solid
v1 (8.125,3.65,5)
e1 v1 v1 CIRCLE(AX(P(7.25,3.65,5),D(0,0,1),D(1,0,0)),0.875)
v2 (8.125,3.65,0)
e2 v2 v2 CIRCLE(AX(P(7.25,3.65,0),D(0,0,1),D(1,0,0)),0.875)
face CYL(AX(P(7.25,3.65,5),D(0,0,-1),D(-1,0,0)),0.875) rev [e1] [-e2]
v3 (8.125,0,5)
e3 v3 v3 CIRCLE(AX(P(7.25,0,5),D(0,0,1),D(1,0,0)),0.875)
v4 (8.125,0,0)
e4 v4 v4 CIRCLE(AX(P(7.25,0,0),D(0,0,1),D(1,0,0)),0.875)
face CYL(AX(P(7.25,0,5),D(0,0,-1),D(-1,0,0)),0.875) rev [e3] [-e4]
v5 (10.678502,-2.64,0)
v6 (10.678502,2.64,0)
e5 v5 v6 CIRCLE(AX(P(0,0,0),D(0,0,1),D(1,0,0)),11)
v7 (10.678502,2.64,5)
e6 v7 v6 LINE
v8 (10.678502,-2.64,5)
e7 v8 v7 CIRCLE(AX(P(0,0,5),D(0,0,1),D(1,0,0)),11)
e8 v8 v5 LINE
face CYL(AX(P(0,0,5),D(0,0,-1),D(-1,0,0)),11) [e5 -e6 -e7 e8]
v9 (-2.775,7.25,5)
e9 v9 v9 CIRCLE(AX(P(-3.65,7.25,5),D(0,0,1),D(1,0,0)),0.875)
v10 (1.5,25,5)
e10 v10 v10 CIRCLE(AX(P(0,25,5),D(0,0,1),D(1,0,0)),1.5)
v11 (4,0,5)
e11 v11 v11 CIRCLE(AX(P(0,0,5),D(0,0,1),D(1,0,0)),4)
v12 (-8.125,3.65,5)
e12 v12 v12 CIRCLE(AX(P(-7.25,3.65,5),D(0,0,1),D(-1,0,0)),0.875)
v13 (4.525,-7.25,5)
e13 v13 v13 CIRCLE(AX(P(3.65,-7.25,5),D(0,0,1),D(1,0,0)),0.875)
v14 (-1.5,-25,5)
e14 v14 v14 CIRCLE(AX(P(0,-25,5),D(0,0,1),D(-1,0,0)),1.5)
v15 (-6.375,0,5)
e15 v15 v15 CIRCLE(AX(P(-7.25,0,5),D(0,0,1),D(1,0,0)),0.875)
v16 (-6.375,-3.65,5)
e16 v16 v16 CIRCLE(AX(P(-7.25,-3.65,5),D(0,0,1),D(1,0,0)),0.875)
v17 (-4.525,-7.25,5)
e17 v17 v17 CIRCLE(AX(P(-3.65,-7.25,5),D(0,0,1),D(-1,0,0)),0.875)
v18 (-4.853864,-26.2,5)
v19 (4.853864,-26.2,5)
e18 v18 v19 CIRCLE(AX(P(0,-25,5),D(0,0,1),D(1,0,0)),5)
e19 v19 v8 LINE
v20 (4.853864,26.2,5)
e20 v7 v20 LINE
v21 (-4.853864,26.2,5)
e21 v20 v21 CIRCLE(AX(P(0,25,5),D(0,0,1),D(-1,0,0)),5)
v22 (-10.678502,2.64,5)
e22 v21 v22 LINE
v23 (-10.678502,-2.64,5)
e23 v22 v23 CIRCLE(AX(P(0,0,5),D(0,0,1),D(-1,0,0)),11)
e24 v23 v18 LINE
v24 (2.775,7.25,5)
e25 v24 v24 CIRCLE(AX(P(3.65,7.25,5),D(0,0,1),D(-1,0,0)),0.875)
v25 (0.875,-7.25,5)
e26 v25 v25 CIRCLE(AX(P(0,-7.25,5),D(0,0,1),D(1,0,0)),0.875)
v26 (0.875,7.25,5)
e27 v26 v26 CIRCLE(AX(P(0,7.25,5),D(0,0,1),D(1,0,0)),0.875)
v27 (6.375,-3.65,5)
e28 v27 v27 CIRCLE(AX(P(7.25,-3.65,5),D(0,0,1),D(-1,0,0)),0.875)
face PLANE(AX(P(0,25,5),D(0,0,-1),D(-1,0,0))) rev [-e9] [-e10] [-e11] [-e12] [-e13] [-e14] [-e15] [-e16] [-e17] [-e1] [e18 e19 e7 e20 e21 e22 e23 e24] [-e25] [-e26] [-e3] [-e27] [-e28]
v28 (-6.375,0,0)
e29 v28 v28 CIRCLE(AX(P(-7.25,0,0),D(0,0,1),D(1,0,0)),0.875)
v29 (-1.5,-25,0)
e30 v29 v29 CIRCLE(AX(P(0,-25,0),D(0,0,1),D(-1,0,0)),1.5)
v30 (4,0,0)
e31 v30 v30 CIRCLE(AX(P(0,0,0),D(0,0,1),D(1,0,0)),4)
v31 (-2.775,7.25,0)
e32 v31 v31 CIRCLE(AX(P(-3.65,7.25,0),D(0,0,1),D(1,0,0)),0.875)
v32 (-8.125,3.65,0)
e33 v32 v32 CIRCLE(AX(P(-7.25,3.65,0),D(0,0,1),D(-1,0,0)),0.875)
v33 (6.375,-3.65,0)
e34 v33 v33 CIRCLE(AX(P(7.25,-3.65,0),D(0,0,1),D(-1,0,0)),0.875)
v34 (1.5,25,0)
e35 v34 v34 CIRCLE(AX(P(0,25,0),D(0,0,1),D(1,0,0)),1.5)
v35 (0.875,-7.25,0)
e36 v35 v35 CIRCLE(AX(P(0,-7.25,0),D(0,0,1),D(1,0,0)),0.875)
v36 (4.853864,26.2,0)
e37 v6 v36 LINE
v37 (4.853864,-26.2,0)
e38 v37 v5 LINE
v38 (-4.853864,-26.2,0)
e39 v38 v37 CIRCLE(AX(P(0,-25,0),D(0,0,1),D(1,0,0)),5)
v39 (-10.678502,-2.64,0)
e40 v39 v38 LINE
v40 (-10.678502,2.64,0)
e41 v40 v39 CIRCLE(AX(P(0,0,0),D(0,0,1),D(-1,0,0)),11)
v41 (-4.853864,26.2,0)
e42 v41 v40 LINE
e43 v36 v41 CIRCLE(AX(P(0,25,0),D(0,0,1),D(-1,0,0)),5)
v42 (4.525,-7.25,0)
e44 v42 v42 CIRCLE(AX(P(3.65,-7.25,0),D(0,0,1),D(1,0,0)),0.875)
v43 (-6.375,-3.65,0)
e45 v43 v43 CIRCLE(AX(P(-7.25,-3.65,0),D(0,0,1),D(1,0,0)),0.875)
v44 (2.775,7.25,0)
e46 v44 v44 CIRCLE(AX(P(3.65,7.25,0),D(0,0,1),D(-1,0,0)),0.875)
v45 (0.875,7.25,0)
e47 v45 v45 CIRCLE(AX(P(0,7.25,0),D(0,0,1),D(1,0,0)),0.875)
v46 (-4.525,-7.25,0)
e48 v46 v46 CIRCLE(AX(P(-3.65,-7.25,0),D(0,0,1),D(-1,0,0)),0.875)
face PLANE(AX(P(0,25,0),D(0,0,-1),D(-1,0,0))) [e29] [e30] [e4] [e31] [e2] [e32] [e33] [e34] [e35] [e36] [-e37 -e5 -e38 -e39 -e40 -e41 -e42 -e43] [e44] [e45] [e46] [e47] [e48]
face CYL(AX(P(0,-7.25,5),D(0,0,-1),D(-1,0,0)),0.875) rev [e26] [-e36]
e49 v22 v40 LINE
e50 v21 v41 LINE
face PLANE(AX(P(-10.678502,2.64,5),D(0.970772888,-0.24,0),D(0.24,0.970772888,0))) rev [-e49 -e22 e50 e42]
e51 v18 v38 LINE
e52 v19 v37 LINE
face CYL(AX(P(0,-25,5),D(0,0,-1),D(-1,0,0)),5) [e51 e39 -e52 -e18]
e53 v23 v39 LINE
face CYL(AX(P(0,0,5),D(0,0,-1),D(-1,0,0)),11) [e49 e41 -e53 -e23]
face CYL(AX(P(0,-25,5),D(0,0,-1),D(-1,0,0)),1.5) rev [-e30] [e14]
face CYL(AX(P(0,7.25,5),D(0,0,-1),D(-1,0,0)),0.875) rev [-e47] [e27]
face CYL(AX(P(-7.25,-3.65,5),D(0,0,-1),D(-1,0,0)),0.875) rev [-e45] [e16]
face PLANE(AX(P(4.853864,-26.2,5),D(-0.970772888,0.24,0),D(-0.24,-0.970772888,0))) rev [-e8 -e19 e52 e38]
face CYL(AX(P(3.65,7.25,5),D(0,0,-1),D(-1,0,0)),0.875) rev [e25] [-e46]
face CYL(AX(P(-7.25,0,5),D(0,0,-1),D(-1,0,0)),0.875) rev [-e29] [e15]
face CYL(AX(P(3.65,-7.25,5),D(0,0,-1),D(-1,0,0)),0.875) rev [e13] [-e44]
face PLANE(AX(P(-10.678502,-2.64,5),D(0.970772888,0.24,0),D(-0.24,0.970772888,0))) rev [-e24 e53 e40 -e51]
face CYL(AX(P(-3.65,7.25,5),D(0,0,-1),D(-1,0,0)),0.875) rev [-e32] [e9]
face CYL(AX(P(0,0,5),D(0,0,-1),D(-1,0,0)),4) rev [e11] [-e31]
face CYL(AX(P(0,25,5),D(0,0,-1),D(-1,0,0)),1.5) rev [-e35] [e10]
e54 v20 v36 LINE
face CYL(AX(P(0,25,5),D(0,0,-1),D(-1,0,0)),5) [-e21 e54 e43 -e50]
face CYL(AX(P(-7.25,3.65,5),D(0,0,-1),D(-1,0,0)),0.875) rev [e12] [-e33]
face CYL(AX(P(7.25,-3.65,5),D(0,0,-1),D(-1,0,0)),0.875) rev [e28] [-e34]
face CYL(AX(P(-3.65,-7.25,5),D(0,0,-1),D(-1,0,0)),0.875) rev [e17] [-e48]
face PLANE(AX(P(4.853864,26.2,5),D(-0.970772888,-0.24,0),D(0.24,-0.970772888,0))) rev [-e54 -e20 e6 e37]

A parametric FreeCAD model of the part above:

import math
import FreeCAD as App
import Part
import Sketcher
from FreeCAD import Vector

doc = App.newDocument("Part")
body = doc.addObject("PartDesign::Body", "Body")

# Sketch on XY plane
sketch1 = body.newObject("Sketcher::SketchObject", "Sketch")
sketch1.AttachmentSupport = (doc.getObject("XY_Plane"), [""])
sketch1.MapMode = "FlatFace"
sketch1.addGeometry(Part.LineSegment(Vector(-4.9, 26.2, 0), Vector(-10.7, 2.6, 0)), False)
sketch1.addGeometry(Part.ArcOfCircle(Part.Circle(Vector(0, 0, 0), Vector(0, 0, 1), 11), math.radians(166), math.radians(194)), False)
sketch1.addGeometry(Part.LineSegment(Vector(-10.7, -2.6, 0), Vector(-4.9, -26.2, 0)), False)
sketch1.addGeometry(Part.ArcOfCircle(Part.Circle(Vector(0, -25, 0), Vector(0, 0, 1), 5), math.radians(-166), math.radians(-14)), False)
sketch1.addGeometry(Part.LineSegment(Vector(4.9, -26.2, 0), Vector(10.7, -2.6, 0)), False)
sketch1.addGeometry(Part.ArcOfCircle(Part.Circle(Vector(0, 0, 0), Vector(0, 0, 1), 11), math.radians(-14), math.radians(14)), False)
sketch1.addGeometry(Part.LineSegment(Vector(10.7, 2.6, 0), Vector(4.9, 26.2, 0)), False)
sketch1.addGeometry(Part.ArcOfCircle(Part.Circle(Vector(0, 25, 0), Vector(0, 0, 1), 5), math.radians(14), math.radians(166)), False)
sketch1.addGeometry(Part.Circle(Vector(7.2, -3.6, 0), Vector(0, 0, 1), 0.9), False)
sketch1.addGeometry(Part.Circle(Vector(3.6, -7.2, 0), Vector(0, 0, 1), 0.9), False)
sketch1.addGeometry(Part.Circle(Vector(0, -25, 0), Vector(0, 0, 1), 1.5), False)
sketch1.addGeometry(Part.Circle(Vector(0, -7.2, 0), Vector(0, 0, 1), 0.9), False)
sketch1.addGeometry(Part.Circle(Vector(-3.6, -7.2, 0), Vector(0, 0, 1), 0.9), False)
sketch1.addGeometry(Part.Circle(Vector(-7.2, -3.6, 0), Vector(0, 0, 1), 0.9), False)
sketch1.addGeometry(Part.Circle(Vector(7.2, 0, 0), Vector(0, 0, 1), 0.9), False)
sketch1.addGeometry(Part.Circle(Vector(7.2, 3.6, 0), Vector(0, 0, 1), 0.9), False)
sketch1.addGeometry(Part.Circle(Vector(3.6, 7.2, 0), Vector(0, 0, 1), 0.9), False)
sketch1.addGeometry(Part.Circle(Vector(0, 0, 0), Vector(0, 0, 1), 4), False)
sketch1.addGeometry(Part.Circle(Vector(0, 7.2, 0), Vector(0, 0, 1), 0.9), False)
sketch1.addGeometry(Part.Circle(Vector(-3.6, 7.2, 0), Vector(0, 0, 1), 0.9), False)
sketch1.addGeometry(Part.Circle(Vector(-7.2, 0, 0), Vector(0, 0, 1), 0.9), False)
sketch1.addGeometry(Part.Circle(Vector(-7.2, 3.6, 0), Vector(0, 0, 1), 0.9), False)
sketch1.addGeometry(Part.Circle(Vector(0, 25, 0), Vector(0, 0, 1), 1.5), False)
sketch1.addConstraint(Sketcher.Constraint("Tangent", 0, 2, 1, 1))
sketch1.addConstraint(Sketcher.Constraint("Tangent", 1, 2, 2, 1))
sketch1.addConstraint(Sketcher.Constraint("Tangent", 2, 2, 3, 1))
sketch1.addConstraint(Sketcher.Constraint("Tangent", 3, 2, 4, 1))
sketch1.addConstraint(Sketcher.Constraint("Tangent", 4, 2, 5, 1))
sketch1.addConstraint(Sketcher.Constraint("Tangent", 5, 2, 6, 1))
sketch1.addConstraint(Sketcher.Constraint("Tangent", 6, 2, 7, 1))
sketch1.addConstraint(Sketcher.Constraint("Tangent", 7, 2, 0, 1))
sketch1.addConstraint(Sketcher.Constraint("Coincident", 1, 3, -1, 1))
sketch1.addConstraint(Sketcher.Constraint("Coincident", 5, 3, -1, 1))
sketch1.addConstraint(Sketcher.Constraint("Coincident", 17, 3, -1, 1))
sketch1.addConstraint(Sketcher.Constraint("Coincident", 10, 3, 3, 3))
sketch1.addConstraint(Sketcher.Constraint("Coincident", 22, 3, 7, 3))
sketch1.addConstraint(Sketcher.Constraint("Equal", 1, 5))
sketch1.addConstraint(Sketcher.Constraint("Equal", 3, 7))
sketch1.addConstraint(Sketcher.Constraint("Equal", 8, 9))
sketch1.addConstraint(Sketcher.Constraint("Equal", 9, 11))
sketch1.addConstraint(Sketcher.Constraint("Equal", 11, 12))
sketch1.addConstraint(Sketcher.Constraint("Equal", 12, 13))
sketch1.addConstraint(Sketcher.Constraint("Equal", 13, 14))
sketch1.addConstraint(Sketcher.Constraint("Equal", 14, 15))
sketch1.addConstraint(Sketcher.Constraint("Equal", 15, 16))
sketch1.addConstraint(Sketcher.Constraint("Equal", 16, 18))
sketch1.addConstraint(Sketcher.Constraint("Equal", 18, 19))
sketch1.addConstraint(Sketcher.Constraint("Equal", 19, 20))
sketch1.addConstraint(Sketcher.Constraint("Equal", 20, 21))
sketch1.addConstraint(Sketcher.Constraint("Equal", 10, 22))
sketch1.addConstraint(Sketcher.Constraint("Symmetric", 3, 3, 7, 3, -1, 1))
sketch1.addConstraint(Sketcher.Constraint("Symmetric", 13, 3, 15, 3, -1, 1))
sketch1.addConstraint(Sketcher.Constraint("Symmetric", 12, 3, 16, 3, -1, 1))
sketch1.addConstraint(Sketcher.Constraint("Symmetric", 11, 3, 18, 3, -1, 1))
sketch1.addConstraint(Sketcher.Constraint("Symmetric", 9, 3, 19, 3, -1, 1))
sketch1.addConstraint(Sketcher.Constraint("Symmetric", 14, 3, 20, 3, -1, 1))
sketch1.addConstraint(Sketcher.Constraint("Symmetric", 8, 3, 21, 3, -1, 1))
sketch1.addConstraint(Sketcher.Constraint("Symmetric", 9, 3, 12, 3, -2))
sketch1.addConstraint(Sketcher.Constraint("Symmetric", 8, 3, 13, 3, -2))
sketch1.addConstraint(Sketcher.Constraint("PointOnObject", 3, 3, -2))
sketch1.addConstraint(Sketcher.Constraint("PointOnObject", 11, 3, -2))
sketch1.addConstraint(Sketcher.Constraint("PointOnObject", 14, 3, -1))
sketch1.addConstraint(Sketcher.Constraint("Horizontal", 9, 3, 11, 3))
sketch1.addConstraint(Sketcher.Constraint("Vertical", 8, 3, 14, 3))
sketch1.addConstraint(Sketcher.Constraint("Diameter", 10, 3.0))
sketch1.addConstraint(Sketcher.Constraint("Diameter", 17, 8.0))
sketch1.addConstraint(Sketcher.Constraint("Radius", 1, 11.0))
sketch1.addConstraint(Sketcher.Constraint("Radius", 3, 5.0))
sketch1.addConstraint(Sketcher.Constraint("Diameter", 8, 1.75))
sketch1.addConstraint(Sketcher.Constraint("DistanceY", 3, 3, -1, 1, 25.0))
sketch1.addConstraint(Sketcher.Constraint("DistanceX", 9, 3, 8, 3, 3.6))
sketch1.addConstraint(Sketcher.Constraint("DistanceY", 9, 3, 8, 3, 3.6))
sketch1.addConstraint(Sketcher.Constraint("DistanceX", 12, 3, 9, 3, 7.3))
sketch1.addConstraint(Sketcher.Constraint("DistanceY", 8, 3, 15, 3, 7.3))
pad1 = body.newObject("PartDesign::Pad", "Pad")
pad1.Profile = sketch1
pad1.Length = 5

doc.recompute()
